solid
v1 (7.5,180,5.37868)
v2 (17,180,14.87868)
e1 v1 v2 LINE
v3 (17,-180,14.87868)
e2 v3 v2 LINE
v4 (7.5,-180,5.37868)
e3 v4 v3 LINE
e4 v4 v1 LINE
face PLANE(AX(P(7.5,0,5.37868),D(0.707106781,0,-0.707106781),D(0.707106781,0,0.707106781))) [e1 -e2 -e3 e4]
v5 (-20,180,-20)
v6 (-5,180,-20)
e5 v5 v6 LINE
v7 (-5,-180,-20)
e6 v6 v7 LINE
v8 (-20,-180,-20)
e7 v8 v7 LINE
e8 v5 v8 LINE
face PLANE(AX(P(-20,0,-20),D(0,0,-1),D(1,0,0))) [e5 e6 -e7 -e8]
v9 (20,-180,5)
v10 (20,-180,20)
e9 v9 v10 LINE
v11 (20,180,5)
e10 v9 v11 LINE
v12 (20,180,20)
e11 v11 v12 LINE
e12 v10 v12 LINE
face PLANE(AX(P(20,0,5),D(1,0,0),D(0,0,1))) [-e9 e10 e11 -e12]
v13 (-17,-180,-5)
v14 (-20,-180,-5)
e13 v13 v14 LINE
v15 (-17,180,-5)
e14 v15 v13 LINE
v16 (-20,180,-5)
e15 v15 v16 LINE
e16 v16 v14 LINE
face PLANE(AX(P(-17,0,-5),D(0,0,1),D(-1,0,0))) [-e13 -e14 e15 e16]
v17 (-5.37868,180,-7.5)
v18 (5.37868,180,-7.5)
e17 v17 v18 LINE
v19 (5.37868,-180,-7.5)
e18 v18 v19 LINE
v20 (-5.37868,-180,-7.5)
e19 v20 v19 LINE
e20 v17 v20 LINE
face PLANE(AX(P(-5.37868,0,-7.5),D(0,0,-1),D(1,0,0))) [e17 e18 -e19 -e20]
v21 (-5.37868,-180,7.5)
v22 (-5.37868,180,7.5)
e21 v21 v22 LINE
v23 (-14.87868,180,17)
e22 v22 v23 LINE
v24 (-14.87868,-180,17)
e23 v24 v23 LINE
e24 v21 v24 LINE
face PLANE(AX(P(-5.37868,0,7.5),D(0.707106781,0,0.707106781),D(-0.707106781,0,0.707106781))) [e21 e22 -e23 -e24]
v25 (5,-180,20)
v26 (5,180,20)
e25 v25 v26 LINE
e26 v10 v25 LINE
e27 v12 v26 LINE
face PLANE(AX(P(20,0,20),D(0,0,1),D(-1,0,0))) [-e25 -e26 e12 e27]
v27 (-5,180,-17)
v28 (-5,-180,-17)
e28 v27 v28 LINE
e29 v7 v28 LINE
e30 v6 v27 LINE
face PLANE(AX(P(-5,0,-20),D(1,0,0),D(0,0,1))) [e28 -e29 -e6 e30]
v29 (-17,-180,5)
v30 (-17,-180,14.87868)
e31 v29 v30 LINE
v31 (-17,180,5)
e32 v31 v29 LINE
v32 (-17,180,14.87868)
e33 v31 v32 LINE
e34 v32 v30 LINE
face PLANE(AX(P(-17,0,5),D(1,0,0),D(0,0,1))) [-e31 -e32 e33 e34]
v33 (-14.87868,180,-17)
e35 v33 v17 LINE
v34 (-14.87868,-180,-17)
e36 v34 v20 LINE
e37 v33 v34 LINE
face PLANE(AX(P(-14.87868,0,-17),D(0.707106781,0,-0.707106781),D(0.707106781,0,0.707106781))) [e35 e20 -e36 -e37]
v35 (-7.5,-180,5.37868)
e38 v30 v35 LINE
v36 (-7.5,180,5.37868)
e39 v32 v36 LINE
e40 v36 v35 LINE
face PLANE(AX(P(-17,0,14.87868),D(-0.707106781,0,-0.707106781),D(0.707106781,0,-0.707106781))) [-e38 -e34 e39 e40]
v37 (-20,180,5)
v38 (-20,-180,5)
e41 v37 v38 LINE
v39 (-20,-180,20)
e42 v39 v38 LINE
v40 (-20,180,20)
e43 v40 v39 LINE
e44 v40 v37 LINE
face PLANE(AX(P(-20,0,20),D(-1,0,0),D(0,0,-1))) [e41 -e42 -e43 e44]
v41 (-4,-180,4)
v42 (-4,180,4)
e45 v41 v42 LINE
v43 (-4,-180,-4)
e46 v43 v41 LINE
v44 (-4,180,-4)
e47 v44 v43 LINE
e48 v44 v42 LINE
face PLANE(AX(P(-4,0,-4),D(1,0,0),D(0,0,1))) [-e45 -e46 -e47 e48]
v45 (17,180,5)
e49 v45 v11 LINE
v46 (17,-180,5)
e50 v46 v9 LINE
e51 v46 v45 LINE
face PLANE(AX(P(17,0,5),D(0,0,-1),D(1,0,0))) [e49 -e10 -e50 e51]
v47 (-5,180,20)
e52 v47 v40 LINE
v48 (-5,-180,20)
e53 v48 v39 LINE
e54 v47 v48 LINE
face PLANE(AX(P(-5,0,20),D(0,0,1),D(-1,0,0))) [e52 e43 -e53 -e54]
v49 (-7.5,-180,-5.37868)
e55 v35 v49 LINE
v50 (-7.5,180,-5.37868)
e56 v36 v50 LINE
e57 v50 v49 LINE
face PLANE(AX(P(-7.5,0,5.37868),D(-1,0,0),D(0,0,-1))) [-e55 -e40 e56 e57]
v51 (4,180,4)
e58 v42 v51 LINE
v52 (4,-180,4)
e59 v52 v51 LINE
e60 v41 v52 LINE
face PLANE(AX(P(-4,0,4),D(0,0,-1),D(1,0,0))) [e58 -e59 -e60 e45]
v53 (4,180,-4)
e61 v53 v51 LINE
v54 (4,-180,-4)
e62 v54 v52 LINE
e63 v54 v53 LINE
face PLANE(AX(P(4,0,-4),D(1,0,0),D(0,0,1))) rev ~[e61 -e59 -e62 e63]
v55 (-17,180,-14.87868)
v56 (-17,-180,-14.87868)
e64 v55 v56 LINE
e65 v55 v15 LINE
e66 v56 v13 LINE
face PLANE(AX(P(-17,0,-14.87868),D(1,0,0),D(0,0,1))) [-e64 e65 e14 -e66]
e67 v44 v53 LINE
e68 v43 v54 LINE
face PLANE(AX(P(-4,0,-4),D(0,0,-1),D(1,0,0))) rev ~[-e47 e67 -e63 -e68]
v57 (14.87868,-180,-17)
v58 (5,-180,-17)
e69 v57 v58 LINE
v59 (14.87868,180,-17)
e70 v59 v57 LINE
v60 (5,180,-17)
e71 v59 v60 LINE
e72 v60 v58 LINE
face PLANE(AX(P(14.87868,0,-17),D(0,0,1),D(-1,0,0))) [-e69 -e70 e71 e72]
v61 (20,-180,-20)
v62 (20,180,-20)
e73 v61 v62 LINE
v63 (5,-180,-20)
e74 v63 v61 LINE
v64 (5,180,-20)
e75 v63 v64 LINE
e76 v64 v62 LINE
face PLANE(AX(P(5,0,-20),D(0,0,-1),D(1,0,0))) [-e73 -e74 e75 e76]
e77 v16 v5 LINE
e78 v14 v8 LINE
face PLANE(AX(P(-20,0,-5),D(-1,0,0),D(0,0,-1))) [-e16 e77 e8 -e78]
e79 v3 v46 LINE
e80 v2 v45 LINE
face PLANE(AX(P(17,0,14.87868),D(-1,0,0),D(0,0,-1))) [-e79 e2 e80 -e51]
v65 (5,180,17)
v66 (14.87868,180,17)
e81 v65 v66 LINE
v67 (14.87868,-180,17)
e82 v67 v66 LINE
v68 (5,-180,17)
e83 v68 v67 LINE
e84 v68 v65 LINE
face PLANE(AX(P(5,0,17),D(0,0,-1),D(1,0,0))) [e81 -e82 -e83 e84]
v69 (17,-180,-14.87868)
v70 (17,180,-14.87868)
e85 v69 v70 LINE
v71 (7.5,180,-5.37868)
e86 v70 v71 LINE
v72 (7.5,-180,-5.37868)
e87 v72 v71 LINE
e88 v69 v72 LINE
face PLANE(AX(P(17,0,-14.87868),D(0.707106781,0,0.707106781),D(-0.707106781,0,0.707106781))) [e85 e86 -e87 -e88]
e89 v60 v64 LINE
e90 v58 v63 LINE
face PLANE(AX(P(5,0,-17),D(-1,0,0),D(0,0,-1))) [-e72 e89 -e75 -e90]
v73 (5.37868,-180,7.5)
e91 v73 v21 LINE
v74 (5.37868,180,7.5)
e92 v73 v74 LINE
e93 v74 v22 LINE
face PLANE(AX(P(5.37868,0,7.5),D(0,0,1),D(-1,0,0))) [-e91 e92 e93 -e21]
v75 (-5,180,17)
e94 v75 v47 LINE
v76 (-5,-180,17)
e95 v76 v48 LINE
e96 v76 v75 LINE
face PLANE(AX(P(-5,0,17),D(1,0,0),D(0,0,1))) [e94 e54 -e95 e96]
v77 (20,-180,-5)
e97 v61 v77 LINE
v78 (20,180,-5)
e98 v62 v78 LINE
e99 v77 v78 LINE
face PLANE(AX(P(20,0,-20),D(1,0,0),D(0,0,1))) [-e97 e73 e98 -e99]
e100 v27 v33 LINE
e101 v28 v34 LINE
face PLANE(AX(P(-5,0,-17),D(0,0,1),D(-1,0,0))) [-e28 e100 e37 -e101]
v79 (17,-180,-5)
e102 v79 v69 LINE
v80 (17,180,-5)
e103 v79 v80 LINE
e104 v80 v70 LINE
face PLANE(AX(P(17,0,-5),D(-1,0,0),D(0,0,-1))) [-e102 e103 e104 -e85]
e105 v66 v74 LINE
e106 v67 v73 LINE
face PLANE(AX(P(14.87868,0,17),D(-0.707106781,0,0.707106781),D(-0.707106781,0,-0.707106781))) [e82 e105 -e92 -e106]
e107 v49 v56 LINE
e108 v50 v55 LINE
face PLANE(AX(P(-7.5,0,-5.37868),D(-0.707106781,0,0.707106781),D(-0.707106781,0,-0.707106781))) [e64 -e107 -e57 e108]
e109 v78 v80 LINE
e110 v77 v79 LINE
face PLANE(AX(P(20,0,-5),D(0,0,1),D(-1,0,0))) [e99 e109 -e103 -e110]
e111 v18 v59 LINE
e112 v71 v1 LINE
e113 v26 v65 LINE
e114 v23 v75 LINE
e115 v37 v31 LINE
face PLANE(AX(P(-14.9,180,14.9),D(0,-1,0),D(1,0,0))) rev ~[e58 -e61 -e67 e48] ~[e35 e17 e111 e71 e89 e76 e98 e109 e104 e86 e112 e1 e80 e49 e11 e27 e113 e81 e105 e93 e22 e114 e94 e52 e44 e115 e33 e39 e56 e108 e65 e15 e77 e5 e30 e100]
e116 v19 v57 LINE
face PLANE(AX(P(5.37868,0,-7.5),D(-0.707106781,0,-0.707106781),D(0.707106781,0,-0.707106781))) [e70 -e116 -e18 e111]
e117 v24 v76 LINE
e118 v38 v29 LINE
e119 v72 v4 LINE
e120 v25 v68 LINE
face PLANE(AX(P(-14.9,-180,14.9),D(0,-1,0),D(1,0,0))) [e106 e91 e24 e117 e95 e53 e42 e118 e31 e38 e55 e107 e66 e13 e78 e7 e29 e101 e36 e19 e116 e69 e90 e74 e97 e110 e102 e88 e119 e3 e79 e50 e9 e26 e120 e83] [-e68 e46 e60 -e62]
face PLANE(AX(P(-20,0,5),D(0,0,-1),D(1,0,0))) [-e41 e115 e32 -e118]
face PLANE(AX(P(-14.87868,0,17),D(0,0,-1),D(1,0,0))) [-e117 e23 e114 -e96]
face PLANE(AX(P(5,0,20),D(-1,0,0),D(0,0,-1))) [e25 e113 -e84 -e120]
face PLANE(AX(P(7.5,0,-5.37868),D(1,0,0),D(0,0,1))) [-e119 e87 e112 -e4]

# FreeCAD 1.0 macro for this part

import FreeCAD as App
import Part
import Sketcher
from FreeCAD import Vector

doc = App.newDocument("Part")
body = doc.addObject("PartDesign::Body", "Body")

# Sketch on XZ plane
sketch1 = body.newObject("Sketcher::SketchObject", "Sketch")
sketch1.AttachmentSupport = (doc.getObject("XZ_Plane"), [""])
sketch1.MapMode = "FlatFace"
sketch1.addGeometry(Part.LineSegment(Vector(-5, 17, 0), Vector(-5, 20, 0)), False)
sketch1.addGeometry(Part.LineSegment(Vector(-5, 20, 0), Vector(-20, 20, 0)), False)
sketch1.addGeometry(Part.LineSegment(Vector(-20, 20, 0), Vector(-20, 5, 0)), False)
sketch1.addGeometry(Part.LineSegment(Vector(-20, 5, 0), Vector(-17, 5, 0)), False)
sketch1.addGeometry(Part.LineSegment(Vector(-17, 5, 0), Vector(-17, 14.9, 0)), False)
sketch1.addGeometry(Part.LineSegment(Vector(-17, 14.9, 0), Vector(-7.5, 5.4, 0)), False)
sketch1.addGeometry(Part.LineSegment(Vector(-7.5, 5.4, 0), Vector(-7.5, -5.4, 0)), False)
sketch1.addGeometry(Part.LineSegment(Vector(-7.5, -5.4, 0), Vector(-17, -14.9, 0)), False)
sketch1.addGeometry(Part.LineSegment(Vector(-17, -14.9, 0), Vector(-17, -5, 0)), False)
sketch1.addGeometry(Part.LineSegment(Vector(-17, -5, 0), Vector(-20, -5, 0)), False)
sketch1.addGeometry(Part.LineSegment(Vector(-20, -5, 0), Vector(-20, -20, 0)), False)
sketch1.addGeometry(Part.LineSegment(Vector(-20, -20, 0), Vector(-5, -20, 0)), False)
sketch1.addGeometry(Part.LineSegment(Vector(-5, -20, 0), Vector(-5, -17, 0)), False)
sketch1.addGeometry(Part.LineSegment(Vector(-5, -17, 0), Vector(-14.9, -17, 0)), False)
sketch1.addGeometry(Part.LineSegment(Vector(-14.9, -17, 0), Vector(-5.4, -7.5, 0)), False)
sketch1.addGeometry(Part.LineSegment(Vector(-5.4, -7.5, 0), Vector(5.4, -7.5, 0)), False)
sketch1.addGeometry(Part.LineSegment(Vector(5.4, -7.5, 0), Vector(14.9, -17, 0)), False)
sketch1.addGeometry(Part.LineSegment(Vector(14.9, -17, 0), Vector(5, -17, 0)), False)
sketch1.addGeometry(Part.LineSegment(Vector(5, -17, 0), Vector(5, -20, 0)), False)
sketch1.addGeometry(Part.LineSegment(Vector(5, -20, 0), Vector(20, -20, 0)), False)
sketch1.addGeometry(Part.LineSegment(Vector(20, -20, 0), Vector(20, -5, 0)), False)
sketch1.addGeometry(Part.LineSegment(Vector(20, -5, 0), Vector(17, -5, 0)), False)
sketch1.addGeometry(Part.LineSegment(Vector(17, -5, 0), Vector(17, -14.9, 0)), False)
sketch1.addGeometry(Part.LineSegment(Vector(17, -14.9, 0), Vector(7.5, -5.4, 0)), False)
sketch1.addGeometry(Part.LineSegment(Vector(7.5, -5.4, 0), Vector(7.5, 5.4, 0)), False)
sketch1.addGeometry(Part.LineSegment(Vector(7.5, 5.4, 0), Vector(17, 14.9, 0)), False)
sketch1.addGeometry(Part.LineSegment(Vector(17, 14.9, 0), Vector(17, 5, 0)), False)
sketch1.addGeometry(Part.LineSegment(Vector(17, 5, 0), Vector(20, 5, 0)), False)
sketch1.addGeometry(Part.LineSegment(Vector(20, 5, 0), Vector(20, 20, 0)), False)
sketch1.addGeometry(Part.LineSegment(Vector(20, 20, 0), Vector(5, 20, 0)), False)
sketch1.addGeometry(Part.LineSegment(Vector(5, 20, 0), Vector(5, 17, 0)), False)
sketch1.addGeometry(Part.LineSegment(Vector(5, 17, 0), Vector(14.9, 17, 0)), False)
sketch1.addGeometry(Part.LineSegment(Vector(14.9, 17, 0), Vector(5.4, 7.5, 0)), False)
sketch1.addGeometry(Part.LineSegment(Vector(5.4, 7.5, 0), Vector(-5.4, 7.5, 0)), False)
sketch1.addGeometry(Part.LineSegment(Vector(-5.4, 7.5, 0), Vector(-14.9, 17, 0)), False)
sketch1.addGeometry(Part.LineSegment(Vector(-14.9, 17, 0), Vector(-5, 17, 0)), False)
sketch1.addGeometry(Part.LineSegment(Vector(4, -4, 0), Vector(-4, -4, 0)), False)
sketch1.addGeometry(Part.LineSegment(Vector(-4, -4, 0), Vector(-4, 4, 0)), False)
sketch1.addGeometry(Part.LineSegment(Vector(-4, 4, 0), Vector(4, 4, 0)), False)
sketch1.addGeometry(Part.LineSegment(Vector(4, 4, 0), Vector(4, -4, 0)), False)
sketch1.addConstraint(Sketcher.Constraint("Coincident", 0, 2, 1, 1))
sketch1.addConstraint(Sketcher.Constraint("Coincident", 1, 2, 2, 1))
sketch1.addConstraint(Sketcher.Constraint("Coincident", 2, 2, 3, 1))
sketch1.addConstraint(Sketcher.Constraint("Coincident", 3, 2, 4, 1))
sketch1.addConstraint(Sketcher.Constraint("Coincident", 4, 2, 5, 1))
sketch1.addConstraint(Sketcher.Constraint("Coincident", 5, 2, 6, 1))
sketch1.addConstraint(Sketcher.Constraint("Coincident", 6, 2, 7, 1))
sketch1.addConstraint(Sketcher.Constraint("Coincident", 7, 2, 8, 1))
sketch1.addConstraint(Sketcher.Constraint("Coincident", 8, 2, 9, 1))
sketch1.addConstraint(Sketcher.Constraint("Coincident", 9, 2, 10, 1))
sketch1.addConstraint(Sketcher.Constraint("Coincident", 10, 2, 11, 1))
sketch1.addConstraint(Sketcher.Constraint("Coincident", 11, 2, 12, 1))
sketch1.addConstraint(Sketcher.Constraint("Coincident", 12, 2, 13, 1))
sketch1.addConstraint(Sketcher.Constraint("Coincident", 13, 2, 14, 1))
sketch1.addConstraint(Sketcher.Constraint("Coincident", 14, 2, 15, 1))
sketch1.addConstraint(Sketcher.Constraint("Coincident", 15, 2, 16, 1))
sketch1.addConstraint(Sketcher.Constraint("Coincident", 16, 2, 17, 1))
sketch1.addConstraint(Sketcher.Constraint("Coincident", 17, 2, 18, 1))
sketch1.addConstraint(Sketcher.Constraint("Coincident", 18, 2, 19, 1))
sketch1.addConstraint(Sketcher.Constraint("Coincident", 19, 2, 20, 1))
sketch1.addConstraint(Sketcher.Constraint("Coincident", 20, 2, 21, 1))
sketch1.addConstraint(Sketcher.Constraint("Coincident", 21, 2, 22, 1))
sketch1.addConstraint(Sketcher.Constraint("Coincident", 22, 2, 23, 1))
sketch1.addConstraint(Sketcher.Constraint("Coincident", 23, 2, 24, 1))
sketch1.addConstraint(Sketcher.Constraint("Coincident", 24, 2, 25, 1))
sketch1.addConstraint(Sketcher.Constraint("Coincident", 25, 2, 26, 1))
sketch1.addConstraint(Sketcher.Constraint("Coincident", 26, 2, 27, 1))
sketch1.addConstraint(Sketcher.Constraint("Coincident", 27, 2, 28, 1))
sketch1.addConstraint(Sketcher.Constraint("Coincident", 28, 2, 29, 1))
sketch1.addConstraint(Sketcher.Constraint("Coincident", 29, 2, 30, 1))
sketch1.addConstraint(Sketcher.Constraint("Coincident", 30, 2, 31, 1))
sketch1.addConstraint(Sketcher.Constraint("Coincident", 31, 2, 32, 1))
sketch1.addConstraint(Sketcher.Constraint("Coincident", 32, 2, 33, 1))
sketch1.addConstraint(Sketcher.Constraint("Coincident", 33, 2, 34, 1))
sketch1.addConstraint(Sketcher.Constraint("Coincident", 34, 2, 35, 1))
sketch1.addConstraint(Sketcher.Constraint("Coincident", 35, 2, 0, 1))
sketch1.addConstraint(Sketcher.Constraint("Coincident", 36, 2, 37, 1))
sketch1.addConstraint(Sketcher.Constraint("Coincident", 37, 2, 38, 1))
sketch1.addConstraint(Sketcher.Constraint("Coincident", 38, 2, 39, 1))
sketch1.addConstraint(Sketcher.Constraint("Coincident", 39, 2, 36, 1))
sketch1.addConstraint(Sketcher.Constraint("Vertical", 0))
sketch1.addConstraint(Sketcher.Constraint("Horizontal", 1))
sketch1.addConstraint(Sketcher.Constraint("Vertical", 2))
sketch1.addConstraint(Sketcher.Constraint("Horizontal", 3))
sketch1.addConstraint(Sketcher.Constraint("Vertical", 4))
sketch1.addConstraint(Sketcher.Constraint("Vertical", 6))
sketch1.addConstraint(Sketcher.Constraint("Vertical", 8))
sketch1.addConstraint(Sketcher.Constraint("Horizontal", 9))
sketch1.addConstraint(Sketcher.Constraint("Vertical", 10))
sketch1.addConstraint(Sketcher.Constraint("Horizontal", 11))
sketch1.addConstraint(Sketcher.Constraint("Vertical", 12))
sketch1.addConstraint(Sketcher.Constraint("Horizontal", 13))
sketch1.addConstraint(Sketcher.Constraint("Horizontal", 15))
sketch1.addConstraint(Sketcher.Constraint("Horizontal", 17))
sketch1.addConstraint(Sketcher.Constraint("Vertical", 18))
sketch1.addConstraint(Sketcher.Constraint("Horizontal", 19))
sketch1.addConstraint(Sketcher.Constraint("Vertical", 20))
sketch1.addConstraint(Sketcher.Constraint("Horizontal", 21))
sketch1.addConstraint(Sketcher.Constraint("Vertical", 22))
sketch1.addConstraint(Sketcher.Constraint("Vertical", 24))
sketch1.addConstraint(Sketcher.Constraint("Vertical", 26))
sketch1.addConstraint(Sketcher.Constraint("Horizontal", 27))
sketch1.addConstraint(Sketcher.Constraint("Vertical", 28))
sketch1.addConstraint(Sketcher.Constraint("Horizontal", 29))
sketch1.addConstraint(Sketcher.Constraint("Vertical", 30))
sketch1.addConstraint(Sketcher.Constraint("Horizontal", 31))
sketch1.addConstraint(Sketcher.Constraint("Horizontal", 33))
sketch1.addConstraint(Sketcher.Constraint("Horizontal", 35))
sketch1.addConstraint(Sketcher.Constraint("Horizontal", 36))
sketch1.addConstraint(Sketcher.Constraint("Vertical", 37))
sketch1.addConstraint(Sketcher.Constraint("Horizontal", 38))
sketch1.addConstraint(Sketcher.Constraint("Vertical", 39))
sketch1.addConstraint(Sketcher.Constraint("Symmetric", 0, 2, 18, 2, -1, 1))
sketch1.addConstraint(Sketcher.Constraint("Symmetric", 2, 2, 20, 2, -1, 1))
sketch1.addConstraint(Sketcher.Constraint("Symmetric", 4, 2, 22, 2, -1, 1))
sketch1.addConstraint(Sketcher.Constraint("Symmetric", 5, 2, 23, 2, -1, 1))
sketch1.addConstraint(Sketcher.Constraint("Symmetric", 7, 2, 25, 2, -1, 1))
sketch1.addConstraint(Sketcher.Constraint("Symmetric", 9, 2, 27, 2, -1, 1))
sketch1.addConstraint(Sketcher.Constraint("Symmetric", 11, 2, 29, 2, -1, 1))
sketch1.addConstraint(Sketcher.Constraint("Symmetric", 13, 2, 31, 2, -1, 1))
sketch1.addConstraint(Sketcher.Constraint("Symmetric", 14, 2, 32, 2, -1, 1))
sketch1.addConstraint(Sketcher.Constraint("Symmetric", 16, 2, 34, 2, -1, 1))
sketch1.addConstraint(Sketcher.Constraint("Symmetric", 36, 2, 38, 2, -1, 1))
sketch1.addConstraint(Sketcher.Constraint("Symmetric", 13, 2, 16, 2, -2))
sketch1.addConstraint(Sketcher.Constraint("Symmetric", 11, 2, 18, 2, -2))
sketch1.addConstraint(Sketcher.Constraint("Symmetric", 9, 2, 20, 2, -2))
sketch1.addConstraint(Sketcher.Constraint("Symmetric", 7, 2, 22, 2, -2))
sketch1.addConstraint(Sketcher.Constraint("Perpendicular", 5, 7))
sketch1.addConstraint(Sketcher.Constraint("Parallel", 7, 14))
sketch1.addConstraint(Sketcher.Constraint("Perpendicular", 14, 16))
sketch1.addConstraint(Sketcher.Constraint("Perpendicular", 23, 25))
sketch1.addConstraint(Sketcher.Constraint("Perpendicular", 32, 34))
sketch1.addConstraint(Sketcher.Constraint("Horizontal", 6, 2, 23, 2))
sketch1.addConstraint(Sketcher.Constraint("Equal", 27, 0))
sketch1.addConstraint(Sketcher.Constraint("Equal", 29, 2))
sketch1.addConstraint(Sketcher.Constraint("Equal", 35, 4))
sketch1.addConstraint(Sketcher.Constraint("Equal", 33, 6))
sketch1.addConstraint(Sketcher.Constraint("Equal", 38, 37))
sketch1.addConstraint(Sketcher.Constraint("Equal", 7, 14))
sketch1.addConstraint(Sketcher.Constraint("DistanceX", 1, 2, 1, 1, 15.0))
sketch1.addConstraint(Sketcher.Constraint("DistanceX", 3, 1, 3, 2, 3.0))
sketch1.addConstraint(Sketcher.Constraint("DistanceX", 36, 2, 36, 1, 8.0))
sketch1.addConstraint(Sketcher.Constraint("DistanceX", 0, 2, -1, 1, 5.0))
sketch1.addConstraint(Sketcher.Constraint("DistanceX", 5, 2, 24, 2, 15.0))
sketch1.addConstraint(Sketcher.Constraint("DistanceX", 13, 2, 13, 1, 9.87868))
pad1 = body.newObject("PartDesign::Pad", "Pad")
pad1.Profile = sketch1
pad1.Length = 360
pad1.Midplane = True

doc.recompute()
